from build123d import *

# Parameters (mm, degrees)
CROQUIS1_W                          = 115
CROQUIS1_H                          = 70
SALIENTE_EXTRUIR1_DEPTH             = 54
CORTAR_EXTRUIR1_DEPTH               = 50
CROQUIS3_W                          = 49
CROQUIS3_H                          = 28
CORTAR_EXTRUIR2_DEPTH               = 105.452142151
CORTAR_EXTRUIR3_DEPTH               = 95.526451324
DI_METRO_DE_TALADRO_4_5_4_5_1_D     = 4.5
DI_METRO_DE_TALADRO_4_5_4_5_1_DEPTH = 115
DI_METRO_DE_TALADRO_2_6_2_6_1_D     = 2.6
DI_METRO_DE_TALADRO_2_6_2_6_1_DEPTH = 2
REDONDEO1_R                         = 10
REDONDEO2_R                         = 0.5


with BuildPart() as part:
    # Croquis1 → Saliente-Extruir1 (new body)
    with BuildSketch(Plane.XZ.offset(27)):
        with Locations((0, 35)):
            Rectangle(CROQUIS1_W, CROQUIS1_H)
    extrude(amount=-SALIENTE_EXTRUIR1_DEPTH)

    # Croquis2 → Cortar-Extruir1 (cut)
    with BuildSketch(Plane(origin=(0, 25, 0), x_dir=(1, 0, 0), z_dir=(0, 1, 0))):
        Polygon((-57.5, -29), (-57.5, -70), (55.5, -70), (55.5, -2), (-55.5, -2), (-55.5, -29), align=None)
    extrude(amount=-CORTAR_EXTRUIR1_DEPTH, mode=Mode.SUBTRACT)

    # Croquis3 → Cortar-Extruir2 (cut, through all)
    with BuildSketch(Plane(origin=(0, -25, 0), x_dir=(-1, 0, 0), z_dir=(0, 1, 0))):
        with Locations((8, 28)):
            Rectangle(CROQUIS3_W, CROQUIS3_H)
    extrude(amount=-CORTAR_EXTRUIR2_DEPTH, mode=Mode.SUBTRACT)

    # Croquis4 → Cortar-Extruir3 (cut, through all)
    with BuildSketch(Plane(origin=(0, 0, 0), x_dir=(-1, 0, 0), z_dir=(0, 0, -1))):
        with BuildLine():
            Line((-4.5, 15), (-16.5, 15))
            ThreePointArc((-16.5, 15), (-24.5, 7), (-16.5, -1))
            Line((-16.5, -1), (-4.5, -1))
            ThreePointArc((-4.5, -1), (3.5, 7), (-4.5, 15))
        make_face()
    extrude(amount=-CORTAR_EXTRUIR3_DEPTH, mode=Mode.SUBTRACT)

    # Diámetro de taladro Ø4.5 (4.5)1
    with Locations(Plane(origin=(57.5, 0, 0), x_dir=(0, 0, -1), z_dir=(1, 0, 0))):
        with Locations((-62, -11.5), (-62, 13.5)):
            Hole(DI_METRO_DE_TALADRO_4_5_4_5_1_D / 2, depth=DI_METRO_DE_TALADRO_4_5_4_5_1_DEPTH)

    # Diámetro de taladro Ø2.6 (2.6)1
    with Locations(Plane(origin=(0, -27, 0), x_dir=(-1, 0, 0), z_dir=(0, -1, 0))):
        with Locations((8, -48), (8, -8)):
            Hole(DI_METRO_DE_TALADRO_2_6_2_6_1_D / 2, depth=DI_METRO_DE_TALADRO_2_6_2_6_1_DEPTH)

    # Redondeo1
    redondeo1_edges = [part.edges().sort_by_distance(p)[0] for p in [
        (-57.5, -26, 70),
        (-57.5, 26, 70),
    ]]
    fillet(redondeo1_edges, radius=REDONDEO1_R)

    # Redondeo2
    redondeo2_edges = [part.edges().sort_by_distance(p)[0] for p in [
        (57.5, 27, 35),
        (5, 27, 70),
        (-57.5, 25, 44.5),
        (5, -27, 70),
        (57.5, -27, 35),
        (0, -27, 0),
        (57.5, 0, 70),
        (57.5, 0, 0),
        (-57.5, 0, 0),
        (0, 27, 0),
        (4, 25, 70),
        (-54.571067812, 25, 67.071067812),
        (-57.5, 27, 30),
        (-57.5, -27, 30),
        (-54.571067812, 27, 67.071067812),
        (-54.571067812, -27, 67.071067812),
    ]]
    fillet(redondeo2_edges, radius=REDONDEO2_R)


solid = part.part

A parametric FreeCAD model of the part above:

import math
import FreeCAD as App
import Part
import Sketcher


def edges_at(feature, points):
    """Names of the edges that pass closest to the given points."""
    edges = feature.Shape.Edges
    near = lambda p: min(range(len(edges)), key=lambda i: edges[i].distToShape(Part.Vertex(*p))[0])
    return sorted({f"Edge{near(p) + 1}" for p in points})


def add_polygon(sketch, points):
    """Adds a closed chain of lines whose ends are joined by coincident constraints."""
    first, n = sketch.GeometryCount, len(points)
    for a, b in zip(points, points[1:] + points[:1]):
        sketch.addGeometry(Part.LineSegment(App.Vector(*a, 0), App.Vector(*b, 0)), False)
    for i in range(n):
        sketch.addConstraint(Sketcher.Constraint("Coincident", first + i, 2, first + (i + 1) % n, 1))

doc = App.newDocument("Part")
body = doc.addObject("PartDesign::Body", "Body")

sketch1 = body.newObject("Sketcher::SketchObject", "Sketch")
sketch1.AttachmentSupport = (doc.getObject("XZ_Plane"), [""])
sketch1.MapMode = "FlatFace"
sketch1.AttachmentOffset = App.Placement(App.Vector(0, 0, 27), App.Rotation())
add_polygon(sketch1, [(-57.5, 70), (-57.5, 0), (57.5, 0), (57.5, 70)])
sketch1.addConstraint([
    Sketcher.Constraint("Vertical", 0),
    Sketcher.Constraint("Horizontal", 1),
    Sketcher.Constraint("Vertical", 2),
    Sketcher.Constraint("Horizontal", 3),
    Sketcher.Constraint("Symmetric", 0, 2, 1, 2, -1, 1),
    Sketcher.Constraint("DistanceX", 1, 1, 1, 2, 115.0),
    Sketcher.Constraint("DistanceY", 0, 2, 0, 1, 70.0),
])
pad1 = body.newObject("PartDesign::Pad", "Pad")
pad1.Profile = sketch1
pad1.Length = 54
pad1.Reversed = True

sketch2 = body.newObject("Sketcher::SketchObject", "Sketch001")
sketch2.AttachmentSupport = (doc.getObject("XZ_Plane"), [""])
sketch2.MapMode = "FlatFace"
sketch2.AttachmentOffset = App.Placement(App.Vector(0, 0, -25), App.Rotation())
add_polygon(sketch2, [(-57.5, 29), (-57.5, 70), (55.5, 70), (55.5, 2), (-55.5, 2), (-55.5, 29)])
sketch2.addConstraint([
    Sketcher.Constraint("Vertical", 0),
    Sketcher.Constraint("Horizontal", 1),
    Sketcher.Constraint("Vertical", 2),
    Sketcher.Constraint("Horizontal", 3),
    Sketcher.Constraint("Vertical", 4),
    Sketcher.Constraint("Horizontal", 5),
    Sketcher.Constraint("DistanceX", 1, 1, 1, 2, 113.0),
    Sketcher.Constraint("DistanceX", 3, 2, 3, 1, 111.0),
    Sketcher.Constraint("DistanceY", 0, 1, 0, 2, 41.0),
    Sketcher.Constraint("DistanceY", 2, 2, 2, 1, 68.0),
    Sketcher.Constraint("DistanceY", -1, 1, 0, 2, 70.0),
    Sketcher.Constraint("DistanceX", 0, 2, -1, 1, 57.5),
])
pocket1 = body.newObject("PartDesign::Pocket", "Pocket")
pocket1.Profile = sketch2
pocket1.Length = 50
pocket1.Reversed = True

sketch3 = body.newObject("Sketcher::SketchObject", "Sketch002")
sketch3.AttachmentSupport = (doc.getObject("XZ_Plane"), [""])
sketch3.MapMode = "FlatFace"
sketch3.AttachmentOffset = App.Placement(App.Vector(0, 0, 25), App.Rotation())
add_polygon(sketch3, [(16.5, 42), (16.5, 14), (-32.5, 14), (-32.5, 42)])
sketch3.addConstraint([
    Sketcher.Constraint("Vertical", 0),
    Sketcher.Constraint("Horizontal", 1),
    Sketcher.Constraint("Vertical", 2),
    Sketcher.Constraint("Horizontal", 3),
    Sketcher.Constraint("DistanceX", 1, 2, 1, 1, 49.0),
    Sketcher.Constraint("DistanceY", 0, 2, 0, 1, 28.0),
    Sketcher.Constraint("DistanceY", -1, 1, 0, 2, 14.0),
    Sketcher.Constraint("DistanceX", -1, 1, 0, 2, 16.5),
])
pocket2 = body.newObject("PartDesign::Pocket", "Pocket001")
pocket2.Profile = sketch3
pocket2.Type = "ThroughAll"
pocket2.Reversed = True

sketch4 = body.newObject("Sketcher::SketchObject", "Sketch003")
sketch4.AttachmentSupport = (doc.getObject("XY_Plane"), [""])
sketch4.MapMode = "FlatFace"
sketch4.addGeometry([
    Part.LineSegment(App.Vector(4.5, 15, 0), App.Vector(16.5, 15, 0)),
    Part.ArcOfCircle(Part.Circle(App.Vector(16.5, 7, 0), App.Vector(0, 0, 1), 8), math.radians(-90), math.radians(90)),
    Part.LineSegment(App.Vector(16.5, -1, 0), App.Vector(4.5, -1, 0)),
    Part.ArcOfCircle(Part.Circle(App.Vector(4.5, 7, 0), App.Vector(0, 0, 1), 8), math.radians(90), math.radians(270)),
], False)
sketch4.addConstraint([
    Sketcher.Constraint("Tangent", 0, 2, 1, 2),
    Sketcher.Constraint("Tangent", 1, 1, 2, 1),
    Sketcher.Constraint("Tangent", 2, 2, 3, 2),
    Sketcher.Constraint("Tangent", 3, 1, 0, 1),
    Sketcher.Constraint("Horizontal", 0),
    Sketcher.Constraint("Horizontal", 2),
    Sketcher.Constraint("Radius", 1, 8.0),
    Sketcher.Constraint("DistanceX", 0, 1, 0, 2, 12.0),
    Sketcher.Constraint("DistanceY", -1, 1, 1, 3, 7.0),
    Sketcher.Constraint("DistanceX", -1, 1, 1, 3, 16.5),
])
pocket3 = body.newObject("PartDesign::Pocket", "Pocket002")
pocket3.Profile = sketch4
pocket3.Type = "ThroughAll"
pocket3.Reversed = True

sketch5 = body.newObject("Sketcher::SketchObject", "Sketch004")
sketch5.AttachmentSupport = (doc.getObject("YZ_Plane"), [""])
sketch5.MapMode = "FlatFace"
sketch5.AttachmentOffset = App.Placement(App.Vector(0, 0, 57.5), App.Rotation())
sketch5.addGeometry([
    Part.Circle(App.Vector(-11.5, 62, 0), App.Vector(0, 0, 1), 2.25),
    Part.Circle(App.Vector(13.5, 62, 0), App.Vector(0, 0, 1), 2.25),
], False)
sketch5.addConstraint([
    Sketcher.Constraint("Equal", 0, 1),
    Sketcher.Constraint("Horizontal", 0, 3, 1, 3),
    Sketcher.Constraint("Diameter", 0, 4.5),
    Sketcher.Constraint("DistanceY", -1, 1, 0, 3, 62.0),
    Sketcher.Constraint("DistanceX", 0, 3, 1, 3, 25.0),
    Sketcher.Constraint("DistanceX", 0, 3, -1, 1, 11.5),
])
doc.recompute()
hole = body.newObject("PartDesign::Hole", "Hole")
hole.Profile = sketch5
hole.ThreadType = "None"
hole.Diameter = 4.5
hole.DepthType = "Dimension"
hole.Depth = 115
hole.DrillPoint = "Flat"

sketch6 = body.newObject("Sketcher::SketchObject", "Sketch005")
sketch6.AttachmentSupport = (doc.getObject("XZ_Plane"), [""])
sketch6.MapMode = "FlatFace"
sketch6.AttachmentOffset = App.Placement(App.Vector(0, 0, 27), App.Rotation())
sketch6.addGeometry([
    Part.Circle(App.Vector(-8, 48, 0), App.Vector(0, 0, 1), 1.3),
    Part.Circle(App.Vector(-8, 8, 0), App.Vector(0, 0, 1), 1.3),
], False)
sketch6.addConstraint([
    Sketcher.Constraint("Equal", 0, 1),
    Sketcher.Constraint("Vertical", 0, 3, 1, 3),
    Sketcher.Constraint("Diameter", 0, 2.6),
    Sketcher.Constraint("DistanceX", 0, 3, -1, 1, 8.0),
    Sketcher.Constraint("DistanceY", -1, 1, 0, 3, 48.0),
    Sketcher.Constraint("DistanceY", -1, 1, 1, 3, 8.0),
])
doc.recompute()
hole2 = body.newObject("PartDesign::Hole", "Hole001")
hole2.Profile = sketch6
hole2.ThreadType = "None"
hole2.Diameter = 2.6
hole2.DepthType = "Dimension"
hole2.Depth = 2
hole2.DrillPoint = "Flat"
doc.recompute()

fillet = body.newObject("PartDesign::Fillet", "Fillet")
fillet.Base = (hole2, edges_at(hole2, [(-57.5, -26, 70), (-57.5, 26, 70)]))
fillet.Radius = 10
doc.recompute()

fillet2 = body.newObject("PartDesign::Fillet", "Fillet001")
fillet2.Base = (fillet, edges_at(fillet, [
    (57.5, 27, 35),
    (5, 27, 70),
    (-57.5, 25, 44.5),
    (5, -27, 70),
    (57.5, -27, 35),
    (0, -27, 0),
    (57.5, 0, 70),
    (57.5, 0, 0),
    (-57.5, 0, 0),
    (0, 27, 0),
    (4, 25, 70),
    (-54.571, 25, 67.071),
    (-57.5, 27, 30),
    (-57.5, -27, 30),
    (-54.571, 27, 67.071),
    (-54.571, -27, 67.071),
]))
fillet2.Radius = 0.5

doc.recompute()
